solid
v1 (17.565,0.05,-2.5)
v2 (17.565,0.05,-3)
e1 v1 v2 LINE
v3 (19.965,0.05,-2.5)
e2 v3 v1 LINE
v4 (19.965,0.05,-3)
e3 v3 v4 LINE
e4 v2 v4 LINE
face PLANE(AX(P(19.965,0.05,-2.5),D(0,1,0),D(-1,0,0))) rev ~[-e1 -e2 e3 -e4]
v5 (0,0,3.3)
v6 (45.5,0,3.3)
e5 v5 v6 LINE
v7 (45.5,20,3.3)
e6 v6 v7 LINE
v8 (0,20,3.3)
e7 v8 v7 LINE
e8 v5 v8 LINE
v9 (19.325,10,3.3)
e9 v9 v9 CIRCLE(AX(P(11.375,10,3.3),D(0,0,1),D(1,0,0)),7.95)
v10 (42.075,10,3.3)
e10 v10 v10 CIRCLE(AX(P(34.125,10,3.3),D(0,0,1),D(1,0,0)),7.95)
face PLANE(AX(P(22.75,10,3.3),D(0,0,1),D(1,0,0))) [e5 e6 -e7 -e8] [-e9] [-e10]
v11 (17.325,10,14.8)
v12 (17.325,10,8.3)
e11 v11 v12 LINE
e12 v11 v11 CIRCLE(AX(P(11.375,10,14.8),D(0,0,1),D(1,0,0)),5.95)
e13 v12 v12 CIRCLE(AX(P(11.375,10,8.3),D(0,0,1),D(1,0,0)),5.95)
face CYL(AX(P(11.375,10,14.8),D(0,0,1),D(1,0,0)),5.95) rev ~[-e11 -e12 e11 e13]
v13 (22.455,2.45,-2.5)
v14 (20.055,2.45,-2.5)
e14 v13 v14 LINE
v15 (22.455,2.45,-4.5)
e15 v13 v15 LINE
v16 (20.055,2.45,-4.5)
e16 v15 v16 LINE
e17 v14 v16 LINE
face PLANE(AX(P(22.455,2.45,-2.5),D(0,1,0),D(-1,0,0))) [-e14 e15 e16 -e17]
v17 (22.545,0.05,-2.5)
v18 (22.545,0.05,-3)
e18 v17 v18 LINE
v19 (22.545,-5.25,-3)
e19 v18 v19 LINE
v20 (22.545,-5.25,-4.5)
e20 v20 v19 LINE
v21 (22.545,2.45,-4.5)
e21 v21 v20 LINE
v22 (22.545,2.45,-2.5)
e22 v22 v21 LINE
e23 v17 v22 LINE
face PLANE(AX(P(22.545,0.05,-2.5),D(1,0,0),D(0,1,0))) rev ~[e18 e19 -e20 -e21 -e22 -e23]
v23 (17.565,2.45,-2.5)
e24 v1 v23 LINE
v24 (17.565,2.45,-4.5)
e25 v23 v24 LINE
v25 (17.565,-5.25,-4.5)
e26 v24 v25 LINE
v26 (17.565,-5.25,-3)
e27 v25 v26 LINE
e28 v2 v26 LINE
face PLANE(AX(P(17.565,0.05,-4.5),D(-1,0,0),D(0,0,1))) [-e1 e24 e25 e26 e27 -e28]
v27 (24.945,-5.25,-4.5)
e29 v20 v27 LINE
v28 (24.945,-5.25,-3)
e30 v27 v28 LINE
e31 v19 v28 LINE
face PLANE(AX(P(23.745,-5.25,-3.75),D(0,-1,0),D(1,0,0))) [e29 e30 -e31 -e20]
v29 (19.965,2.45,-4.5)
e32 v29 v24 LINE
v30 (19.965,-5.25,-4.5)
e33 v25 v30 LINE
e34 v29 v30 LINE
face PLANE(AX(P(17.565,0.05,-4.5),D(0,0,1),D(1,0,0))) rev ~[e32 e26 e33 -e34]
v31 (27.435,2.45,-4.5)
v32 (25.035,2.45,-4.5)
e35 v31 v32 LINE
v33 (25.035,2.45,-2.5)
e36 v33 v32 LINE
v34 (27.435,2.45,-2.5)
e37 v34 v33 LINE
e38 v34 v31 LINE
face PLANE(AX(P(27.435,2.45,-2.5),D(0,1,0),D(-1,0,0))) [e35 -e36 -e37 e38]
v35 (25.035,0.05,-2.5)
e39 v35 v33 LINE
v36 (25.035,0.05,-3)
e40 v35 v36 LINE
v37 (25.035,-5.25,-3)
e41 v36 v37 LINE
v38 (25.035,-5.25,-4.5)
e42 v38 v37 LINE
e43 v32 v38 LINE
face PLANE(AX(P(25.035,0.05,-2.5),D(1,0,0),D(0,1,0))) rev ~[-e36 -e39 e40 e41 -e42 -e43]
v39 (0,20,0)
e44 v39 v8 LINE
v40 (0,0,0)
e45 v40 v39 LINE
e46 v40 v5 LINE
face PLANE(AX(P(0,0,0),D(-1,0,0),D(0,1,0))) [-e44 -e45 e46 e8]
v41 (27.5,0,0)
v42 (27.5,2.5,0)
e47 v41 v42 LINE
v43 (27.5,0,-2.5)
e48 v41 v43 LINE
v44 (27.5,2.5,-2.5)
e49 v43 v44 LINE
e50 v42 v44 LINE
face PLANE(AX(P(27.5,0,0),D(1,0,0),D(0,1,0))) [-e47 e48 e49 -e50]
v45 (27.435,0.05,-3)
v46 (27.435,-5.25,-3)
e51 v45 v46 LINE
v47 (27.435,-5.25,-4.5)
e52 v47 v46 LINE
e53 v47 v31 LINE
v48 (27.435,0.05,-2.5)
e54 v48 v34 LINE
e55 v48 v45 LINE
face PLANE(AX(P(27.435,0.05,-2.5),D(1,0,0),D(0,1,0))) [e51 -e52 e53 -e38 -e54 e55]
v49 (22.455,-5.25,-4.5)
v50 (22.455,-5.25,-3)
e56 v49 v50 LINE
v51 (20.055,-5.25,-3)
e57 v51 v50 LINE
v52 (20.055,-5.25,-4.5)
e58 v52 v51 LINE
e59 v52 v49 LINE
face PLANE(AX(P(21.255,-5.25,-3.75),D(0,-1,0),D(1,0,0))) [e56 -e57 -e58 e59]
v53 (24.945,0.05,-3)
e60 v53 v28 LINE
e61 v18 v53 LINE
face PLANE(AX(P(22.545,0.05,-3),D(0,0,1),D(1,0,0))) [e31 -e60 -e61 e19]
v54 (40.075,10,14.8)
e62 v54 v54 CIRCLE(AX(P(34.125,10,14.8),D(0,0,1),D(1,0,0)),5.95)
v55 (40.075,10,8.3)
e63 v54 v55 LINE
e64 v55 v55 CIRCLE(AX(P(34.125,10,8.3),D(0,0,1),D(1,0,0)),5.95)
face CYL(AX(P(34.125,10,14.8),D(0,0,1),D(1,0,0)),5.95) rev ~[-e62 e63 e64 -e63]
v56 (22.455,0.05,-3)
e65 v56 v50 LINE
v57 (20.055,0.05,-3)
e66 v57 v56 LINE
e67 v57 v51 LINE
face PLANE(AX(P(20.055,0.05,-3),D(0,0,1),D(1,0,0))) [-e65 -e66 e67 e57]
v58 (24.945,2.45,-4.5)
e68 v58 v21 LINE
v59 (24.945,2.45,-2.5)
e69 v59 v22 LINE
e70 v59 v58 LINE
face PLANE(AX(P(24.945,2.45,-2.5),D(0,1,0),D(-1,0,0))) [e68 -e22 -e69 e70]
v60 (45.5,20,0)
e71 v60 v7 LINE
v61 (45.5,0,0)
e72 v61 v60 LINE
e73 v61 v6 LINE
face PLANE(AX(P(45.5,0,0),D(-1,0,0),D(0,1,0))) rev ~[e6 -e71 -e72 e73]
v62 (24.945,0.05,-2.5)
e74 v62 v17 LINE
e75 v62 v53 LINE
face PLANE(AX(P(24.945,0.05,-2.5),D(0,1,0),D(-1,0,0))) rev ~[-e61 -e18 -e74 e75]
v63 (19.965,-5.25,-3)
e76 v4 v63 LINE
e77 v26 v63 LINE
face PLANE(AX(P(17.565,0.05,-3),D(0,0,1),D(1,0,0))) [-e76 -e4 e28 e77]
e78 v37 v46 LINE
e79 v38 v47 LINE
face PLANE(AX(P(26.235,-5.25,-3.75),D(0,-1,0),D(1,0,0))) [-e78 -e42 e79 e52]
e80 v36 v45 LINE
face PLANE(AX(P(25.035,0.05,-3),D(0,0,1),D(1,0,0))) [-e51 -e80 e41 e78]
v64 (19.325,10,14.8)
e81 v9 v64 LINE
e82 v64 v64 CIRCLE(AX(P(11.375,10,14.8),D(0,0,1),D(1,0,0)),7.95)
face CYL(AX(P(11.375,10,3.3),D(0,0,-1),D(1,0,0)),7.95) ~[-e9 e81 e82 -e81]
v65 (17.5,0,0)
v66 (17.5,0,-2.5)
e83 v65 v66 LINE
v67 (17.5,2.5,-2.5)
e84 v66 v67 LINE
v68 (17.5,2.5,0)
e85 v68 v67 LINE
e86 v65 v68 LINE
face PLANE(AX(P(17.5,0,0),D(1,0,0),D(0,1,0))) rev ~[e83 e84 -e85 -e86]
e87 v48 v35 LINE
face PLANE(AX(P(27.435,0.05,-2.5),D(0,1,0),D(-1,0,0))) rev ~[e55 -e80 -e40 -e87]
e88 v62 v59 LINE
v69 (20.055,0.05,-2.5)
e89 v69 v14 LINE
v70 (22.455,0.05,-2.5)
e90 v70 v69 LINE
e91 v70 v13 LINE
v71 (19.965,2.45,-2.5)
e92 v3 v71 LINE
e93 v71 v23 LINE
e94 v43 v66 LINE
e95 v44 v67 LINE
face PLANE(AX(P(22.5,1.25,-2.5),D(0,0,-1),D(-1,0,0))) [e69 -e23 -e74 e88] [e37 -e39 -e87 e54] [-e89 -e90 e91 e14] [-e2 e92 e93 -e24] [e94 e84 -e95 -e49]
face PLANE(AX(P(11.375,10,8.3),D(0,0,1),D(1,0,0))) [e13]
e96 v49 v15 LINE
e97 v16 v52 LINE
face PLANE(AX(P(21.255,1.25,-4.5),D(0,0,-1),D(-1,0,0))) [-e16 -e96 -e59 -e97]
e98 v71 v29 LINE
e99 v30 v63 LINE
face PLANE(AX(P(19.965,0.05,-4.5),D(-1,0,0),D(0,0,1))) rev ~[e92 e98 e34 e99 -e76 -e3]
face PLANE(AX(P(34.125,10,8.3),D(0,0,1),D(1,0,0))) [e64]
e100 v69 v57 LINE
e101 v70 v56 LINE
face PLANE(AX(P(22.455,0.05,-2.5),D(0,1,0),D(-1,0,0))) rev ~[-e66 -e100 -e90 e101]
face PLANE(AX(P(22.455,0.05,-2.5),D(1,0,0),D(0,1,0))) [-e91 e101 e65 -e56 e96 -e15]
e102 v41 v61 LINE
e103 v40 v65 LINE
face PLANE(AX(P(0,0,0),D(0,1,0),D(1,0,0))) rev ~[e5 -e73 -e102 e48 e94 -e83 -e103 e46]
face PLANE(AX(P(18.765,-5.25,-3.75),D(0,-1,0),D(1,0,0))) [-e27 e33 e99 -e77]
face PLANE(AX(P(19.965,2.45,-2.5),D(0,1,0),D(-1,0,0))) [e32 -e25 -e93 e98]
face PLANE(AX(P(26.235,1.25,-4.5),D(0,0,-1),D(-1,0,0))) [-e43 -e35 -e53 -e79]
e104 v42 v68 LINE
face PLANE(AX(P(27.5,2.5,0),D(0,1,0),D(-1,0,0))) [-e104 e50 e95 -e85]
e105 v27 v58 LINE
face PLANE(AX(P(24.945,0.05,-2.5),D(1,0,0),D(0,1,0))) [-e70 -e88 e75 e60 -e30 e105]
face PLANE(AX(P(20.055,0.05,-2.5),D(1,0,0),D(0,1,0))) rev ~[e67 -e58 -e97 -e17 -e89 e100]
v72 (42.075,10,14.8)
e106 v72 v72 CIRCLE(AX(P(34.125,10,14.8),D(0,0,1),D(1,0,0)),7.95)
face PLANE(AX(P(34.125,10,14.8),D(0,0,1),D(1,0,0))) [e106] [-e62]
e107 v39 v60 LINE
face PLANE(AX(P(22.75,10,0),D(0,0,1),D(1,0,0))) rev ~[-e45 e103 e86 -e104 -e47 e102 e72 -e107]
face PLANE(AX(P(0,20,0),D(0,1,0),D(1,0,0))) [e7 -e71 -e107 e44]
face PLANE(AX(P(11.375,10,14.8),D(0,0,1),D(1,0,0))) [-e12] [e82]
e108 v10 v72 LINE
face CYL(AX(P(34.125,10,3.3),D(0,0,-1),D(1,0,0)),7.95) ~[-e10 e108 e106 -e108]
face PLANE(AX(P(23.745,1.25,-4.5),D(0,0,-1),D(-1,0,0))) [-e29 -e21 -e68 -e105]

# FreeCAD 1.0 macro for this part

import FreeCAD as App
import Part
import Sketcher

V = App.Vector
Q = App.Units.Quantity


def add_polygon(sketch, points):
    """Adds a closed chain of lines whose ends are joined by coincident constraints."""
    first, n = sketch.GeometryCount, len(points)
    for a, b in zip(points, points[1:] + points[:1]):
        sketch.addGeometry(Part.LineSegment(App.Vector(*a, 0), App.Vector(*b, 0)), False)
    for i in range(n):
        sketch.addConstraint(Sketcher.Constraint("Coincident", first + i, 2, first + (i + 1) % n, 1))

doc = App.newDocument("Part")
body = doc.addObject("PartDesign::Body", "Body")

# Sketch on XY plane
sketch1 = doc.addObject("Sketcher::SketchObject", "Sketch")
body.addObject(sketch1)
sketch1.AttachmentSupport = (doc.XY_Plane, [""])
sketch1.MapMode = "FlatFace"
add_polygon(sketch1, [(0, 20), (0, 0), (46, 0), (46, 20)])  # lines 0-3
sketch1.addConstraint(Sketcher.Constraint("Vertical", 0))
sketch1.addConstraint(Sketcher.Constraint("Horizontal", 1))
sketch1.addConstraint(Sketcher.Constraint("Vertical", 2))
sketch1.addConstraint(Sketcher.Constraint("Horizontal", 3))
sketch1.addConstraint(Sketcher.Constraint("Coincident", 0, 2, -1, 1))
sketch1.addConstraint(Sketcher.Constraint("DistanceY", 0, 2, 0, 1, Q("20 mm")))
sketch1.addConstraint(Sketcher.Constraint("DistanceX", 1, 1, 1, 2, Q("45.5 mm")))
pad1 = doc.addObject("PartDesign::Pad", "Pad")
body.addObject(pad1)
pad1.Profile = sketch1
pad1.Length = 3.3

# Sketch on XY plane
sketch2 = doc.addObject("Sketcher::SketchObject", "Sketch001")
body.addObject(sketch2)
sketch2.AttachmentSupport = (doc.XY_Plane, [""])
sketch2.MapMode = "FlatFace"
sketch2.AttachmentOffset = App.Placement(V(0, 0, 3.3), App.Rotation())
sketch2.addGeometry(Part.Circle(V(34, 10, 0), V(0, 0, 1), 8), False)
sketch2.addGeometry(Part.Circle(V(11, 10, 0), V(0, 0, 1), 8), False)
sketch2.addConstraint(Sketcher.Constraint("Equal", 0, 1))
sketch2.addConstraint(Sketcher.Constraint("Horizontal", 0, 3, 1, 3))
sketch2.addConstraint(Sketcher.Constraint("Diameter", 0, Q("15.9 mm")))
sketch2.addConstraint(Sketcher.Constraint("DistanceY", -1, 1, 0, 3, Q("10 mm")))
sketch2.addConstraint(Sketcher.Constraint("DistanceX", 1, 3, 0, 3, Q("22.75 mm")))
sketch2.addConstraint(Sketcher.Constraint("DistanceX", -1, 1, 0, 3, Q("34.125 mm")))
pad2 = doc.addObject("PartDesign::Pad", "Pad001")
body.addObject(pad2)
pad2.Profile = sketch2
pad2.Length = 11.5

# Sketch on XY plane
sketch3 = doc.addObject("Sketcher::SketchObject", "Sketch002")
body.addObject(sketch3)
sketch3.AttachmentSupport = (doc.XY_Plane, [""])
sketch3.MapMode = "FlatFace"
sketch3.AttachmentOffset = App.Placement(V(0, 0, 14.8), App.Rotation())
sketch3.addGeometry(Part.Circle(V(34, 10, 0), V(0, 0, 1), 6), False)
sketch3.addGeometry(Part.Circle(V(11, 10, 0), V(0, 0, 1), 6), False)
sketch3.addConstraint(Sketcher.Constraint("Equal", 0, 1))
sketch3.addConstraint(Sketcher.Constraint("Horizontal", 0, 3, 1, 3))
sketch3.addConstraint(Sketcher.Constraint("Diameter", 0, Q("11.9 mm")))
sketch3.addConstraint(Sketcher.Constraint("DistanceY", -1, 1, 0, 3, Q("10 mm")))
sketch3.addConstraint(Sketcher.Constraint("DistanceX", 1, 3, 0, 3, Q("22.75 mm")))
sketch3.addConstraint(Sketcher.Constraint("DistanceX", -1, 1, 0, 3, Q("34.125 mm")))
pocket1 = doc.addObject("PartDesign::Pocket", "Pocket")
body.addObject(pocket1)
pocket1.Profile = sketch3
pocket1.Length = 6.5

# Sketch on XY plane
sketch4 = doc.addObject("Sketcher::SketchObject", "Sketch003")
body.addObject(sketch4)
sketch4.AttachmentSupport = (doc.XY_Plane, [""])
sketch4.MapMode = "FlatFace"
add_polygon(sketch4, [(27.5, 2.5), (27.5, 0), (17.5, 0), (17.5, 2.5)])  # lines 0-3
sketch4.addConstraint(Sketcher.Constraint("Vertical", 0))
sketch4.addConstraint(Sketcher.Constraint("Horizontal", 1))
sketch4.addConstraint(Sketcher.Constraint("Vertical", 2))
sketch4.addConstraint(Sketcher.Constraint("Horizontal", 3))
sketch4.addConstraint(Sketcher.Constraint("PointOnObject", 0, 2, -1))
sketch4.addConstraint(Sketcher.Constraint("DistanceX", 1, 2, 1, 1, Q("10 mm")))
sketch4.addConstraint(Sketcher.Constraint("DistanceY", 0, 2, 0, 1, Q("2.5 mm")))
sketch4.addConstraint(Sketcher.Constraint("DistanceX", -1, 1, 0, 2, Q("27.5 mm")))
pad3 = doc.addObject("PartDesign::Pad", "Pad002")
body.addObject(pad3)
pad3.Profile = sketch4
pad3.Length = 2.5
pad3.Reversed = True

# Sketch on XY plane
sketch5 = doc.addObject("Sketcher::SketchObject", "Sketch004")
body.addObject(sketch5)
sketch5.AttachmentSupport = (doc.XY_Plane, [""])
sketch5.MapMode = "FlatFace"
sketch5.AttachmentOffset = App.Placement(V(0, 0, -2.5), App.Rotation())
add_polygon(sketch5, [(27.4, 2.5), (27.4, 0.1), (25, 0.1), (25, 2.5)])  # lines 0-3
add_polygon(sketch5, [(24.9, 2.5), (24.9, 0.1), (22.5, 0.1), (22.5, 2.5)])  # lines 4-7
add_polygon(sketch5, [(22.5, 2.5), (22.5, 0.1), (20.1, 0.1), (20.1, 2.5)])  # lines 8-11
add_polygon(sketch5, [(20, 2.5), (20, 0.1), (17.6, 0.1), (17.6, 2.5)])  # lines 12-15
sketch5.addConstraint(Sketcher.Constraint("Vertical", 0))
sketch5.addConstraint(Sketcher.Constraint("Horizontal", 1))
sketch5.addConstraint(Sketcher.Constraint("Vertical", 2))
sketch5.addConstraint(Sketcher.Constraint("Horizontal", 3))
sketch5.addConstraint(Sketcher.Constraint("Vertical", 4))
sketch5.addConstraint(Sketcher.Constraint("Horizontal", 5))
sketch5.addConstraint(Sketcher.Constraint("Vertical", 6))
sketch5.addConstraint(Sketcher.Constraint("Horizontal", 7))
sketch5.addConstraint(Sketcher.Constraint("Vertical", 8))
sketch5.addConstraint(Sketcher.Constraint("Horizontal", 9))
sketch5.addConstraint(Sketcher.Constraint("Vertical", 10))
sketch5.addConstraint(Sketcher.Constraint("Horizontal", 11))
sketch5.addConstraint(Sketcher.Constraint("Vertical", 12))
sketch5.addConstraint(Sketcher.Constraint("Horizontal", 13))
sketch5.addConstraint(Sketcher.Constraint("Vertical", 14))
sketch5.addConstraint(Sketcher.Constraint("Horizontal", 15))
sketch5.addConstraint(Sketcher.Constraint("Horizontal", 1, 2, 4, 2))
sketch5.addConstraint(Sketcher.Constraint("Horizontal", 3, 2, 6, 2))
sketch5.addConstraint(Sketcher.Constraint("Horizontal", 5, 2, 8, 2))
sketch5.addConstraint(Sketcher.Constraint("Horizontal", 7, 2, 10, 2))
sketch5.addConstraint(Sketcher.Constraint("Horizontal", 9, 2, 12, 2))
sketch5.addConstraint(Sketcher.Constraint("Horizontal", 11, 2, 14, 2))
sketch5.addConstraint(Sketcher.Constraint("Equal", 3, 5))
sketch5.addConstraint(Sketcher.Constraint("Equal", 7, 9))
sketch5.addConstraint(Sketcher.Constraint("Equal", 11, 13))
sketch5.addConstraint(Sketcher.Constraint("Equal", 15, 0))
sketch5.addConstraint(Sketcher.Constraint("DistanceX", 1, 2, 1, 1, Q("2.4 mm")))
sketch5.addConstraint(Sketcher.Constraint("DistanceY", -1, 1, 0, 2, Q("0.05 mm")))
sketch5.addConstraint(Sketcher.Constraint("DistanceX", 4, 2, 1, 2, Q("0.09 mm")))
sketch5.addConstraint(Sketcher.Constraint("DistanceX", 8, 2, 5, 2, Q("0.09 mm")))
sketch5.addConstraint(Sketcher.Constraint("DistanceX", 12, 2, 9, 2, Q("0.09 mm")))
sketch5.addConstraint(Sketcher.Constraint("DistanceX", -1, 1, 0, 2, Q("27.435 mm")))
pad4 = doc.addObject("PartDesign::Pad", "Pad003")
body.addObject(pad4)
pad4.Profile = sketch5
pad4.Length = 2
pad4.Reversed = True

# Sketch on XZ plane
sketch6 = doc.addObject("Sketcher::SketchObject", "Sketch005")
body.addObject(sketch6)
sketch6.AttachmentSupport = (doc.XZ_Plane, [""])
sketch6.MapMode = "FlatFace"
sketch6.AttachmentOffset = App.Placement(V(0, 0, -0.05), App.Rotation())
add_polygon(sketch6, [(17.6, -3), (17.6, -4.5), (20, -4.5), (20, -3)])  # lines 0-3
add_polygon(sketch6, [(20.1, -3), (20.1, -4.5), (22.5, -4.5), (22.5, -3)])  # lines 4-7
add_polygon(sketch6, [(22.5, -3), (22.5, -4.5), (24.9, -4.5), (24.9, -3)])  # lines 8-11
add_polygon(sketch6, [(25, -3), (25, -4.5), (27.4, -4.5), (27.4, -3)])  # lines 12-15
sketch6.addConstraint(Sketcher.Constraint("Vertical", 0))
sketch6.addConstraint(Sketcher.Constraint("Horizontal", 1))
sketch6.addConstraint(Sketcher.Constraint("Vertical", 2))
sketch6.addConstraint(Sketcher.Constraint("Horizontal", 3))
sketch6.addConstraint(Sketcher.Constraint("Vertical", 4))
sketch6.addConstraint(Sketcher.Constraint("Horizontal", 5))
sketch6.addConstraint(Sketcher.Constraint("Vertical", 6))
sketch6.addConstraint(Sketcher.Constraint("Horizontal", 7))
sketch6.addConstraint(Sketcher.Constraint("Vertical", 8))
sketch6.addConstraint(Sketcher.Constraint("Horizontal", 9))
sketch6.addConstraint(Sketcher.Constraint("Vertical", 10))
sketch6.addConstraint(Sketcher.Constraint("Horizontal", 11))
sketch6.addConstraint(Sketcher.Constraint("Vertical", 12))
sketch6.addConstraint(Sketcher.Constraint("Horizontal", 13))
sketch6.addConstraint(Sketcher.Constraint("Vertical", 14))
sketch6.addConstraint(Sketcher.Constraint("Horizontal", 15))
sketch6.addConstraint(Sketcher.Constraint("Horizontal", 1, 2, 4, 2))
sketch6.addConstraint(Sketcher.Constraint("Horizontal", 3, 2, 6, 2))
sketch6.addConstraint(Sketcher.Constraint("Horizontal", 5, 2, 8, 2))
sketch6.addConstraint(Sketcher.Constraint("Horizontal", 7, 2, 10, 2))
sketch6.addConstraint(Sketcher.Constraint("Horizontal", 9, 2, 12, 2))
sketch6.addConstraint(Sketcher.Constraint("Horizontal", 11, 2, 14, 2))
sketch6.addConstraint(Sketcher.Constraint("Equal", 3, 5))
sketch6.addConstraint(Sketcher.Constraint("Equal", 7, 9))
sketch6.addConstraint(Sketcher.Constraint("Equal", 11, 13))
sketch6.addConstraint(Sketcher.Constraint("DistanceX", 1, 1, 1, 2, Q("2.4 mm")))
sketch6.addConstraint(Sketcher.Constraint("DistanceY", 0, 2, 0, 1, Q("1.5 mm")))
sketch6.addConstraint(Sketcher.Constraint("DistanceY", 2, 2, -1, 1, Q("3 mm")))
sketch6.addConstraint(Sketcher.Constraint("DistanceX", 1, 2, 4, 2, Q("0.09 mm")))
sketch6.addConstraint(Sketcher.Constraint("DistanceX", 5, 2, 8, 2, Q("0.09 mm")))
sketch6.addConstraint(Sketcher.Constraint("DistanceX", 9, 2, 12, 2, Q("0.09 mm")))
sketch6.addConstraint(Sketcher.Constraint("DistanceX", -1, 1, 0, 2, Q("17.565 mm")))
pad5 = doc.addObject("PartDesign::Pad", "Pad004")
body.addObject(pad5)
pad5.Profile = sketch6
pad5.Length = 5.3

doc.recompute()
